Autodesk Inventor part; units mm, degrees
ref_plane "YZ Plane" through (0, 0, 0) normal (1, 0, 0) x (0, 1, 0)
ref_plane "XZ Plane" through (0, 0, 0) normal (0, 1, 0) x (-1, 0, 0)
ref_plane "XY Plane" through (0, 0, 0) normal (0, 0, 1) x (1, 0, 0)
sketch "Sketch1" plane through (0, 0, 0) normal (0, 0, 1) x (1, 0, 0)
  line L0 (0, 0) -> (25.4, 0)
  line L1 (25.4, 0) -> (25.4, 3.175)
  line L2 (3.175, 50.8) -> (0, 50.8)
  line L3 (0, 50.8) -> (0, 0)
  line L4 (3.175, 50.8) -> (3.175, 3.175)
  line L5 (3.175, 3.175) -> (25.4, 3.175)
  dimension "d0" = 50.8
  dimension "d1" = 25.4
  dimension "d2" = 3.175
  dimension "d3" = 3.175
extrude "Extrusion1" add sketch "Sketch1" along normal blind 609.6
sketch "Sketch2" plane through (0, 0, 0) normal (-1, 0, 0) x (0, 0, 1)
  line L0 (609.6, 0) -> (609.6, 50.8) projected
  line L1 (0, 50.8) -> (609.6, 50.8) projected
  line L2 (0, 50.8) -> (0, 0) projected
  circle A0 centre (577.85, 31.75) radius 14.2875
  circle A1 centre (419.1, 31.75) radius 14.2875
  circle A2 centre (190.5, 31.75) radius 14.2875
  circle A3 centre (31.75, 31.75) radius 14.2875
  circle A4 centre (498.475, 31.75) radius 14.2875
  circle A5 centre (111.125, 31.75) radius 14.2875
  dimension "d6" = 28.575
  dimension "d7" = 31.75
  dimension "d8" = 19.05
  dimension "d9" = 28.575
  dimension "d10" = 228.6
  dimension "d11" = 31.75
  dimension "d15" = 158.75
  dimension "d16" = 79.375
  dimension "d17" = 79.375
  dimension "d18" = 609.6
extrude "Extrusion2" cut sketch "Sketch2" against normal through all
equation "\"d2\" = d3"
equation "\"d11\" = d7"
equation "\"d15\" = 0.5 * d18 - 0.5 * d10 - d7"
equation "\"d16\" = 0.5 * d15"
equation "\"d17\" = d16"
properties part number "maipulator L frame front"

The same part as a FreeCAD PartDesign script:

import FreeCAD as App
import Part
import Sketcher
from FreeCAD import Vector
Q = App.Units.Quantity

doc = App.newDocument("Part")
params = doc.addObject("Spreadsheet::Sheet", "Params")
for row, (alias, value) in enumerate([
    ("sketch1_width", "1 in"),
    ("sketch1_height", "2 in"),
    ("sketch1_width2", "0.125 in"),
    ("pad1_length", "24 in"),
    ("sketch2_diameter", "1.125 in"),
], start=1):
    params.set(f"A{row}", alias)
    params.set(f"B{row}", "=" + value)
    params.setAlias(f"B{row}", alias)

body = doc.addObject("PartDesign::Body", "Body")

# Sketch on XY plane
sketch1 = body.newObject("Sketcher::SketchObject", "Sketch")
sketch1.AttachmentSupport = (doc.getObject("XY_Plane"), [""])
sketch1.MapMode = "FlatFace"
sketch1.addGeometry([
    Part.LineSegment(Vector(0, 50.8, 0), Vector(0, 0, 0)),  # 0
    Part.LineSegment(Vector(0, 0, 0), Vector(25.4, 0, 0)),  # 1
    Part.LineSegment(Vector(25.4, 0, 0), Vector(25.4, 3.175, 0)),  # 2
    Part.LineSegment(Vector(25.4, 3.175, 0), Vector(3.175, 3.175, 0)),  # 3
    Part.LineSegment(Vector(3.175, 3.175, 0), Vector(3.175, 50.8, 0)),  # 4
    Part.LineSegment(Vector(3.175, 50.8, 0), Vector(0, 50.8, 0)),  # 5
], False)
sketch1.addConstraint([
    Sketcher.Constraint("Coincident", 0, 2, 1, 1),
    Sketcher.Constraint("Coincident", 1, 2, 2, 1),
    Sketcher.Constraint("Coincident", 2, 2, 3, 1),
    Sketcher.Constraint("Coincident", 3, 2, 4, 1),
    Sketcher.Constraint("Coincident", 4, 2, 5, 1),
    Sketcher.Constraint("Coincident", 5, 2, 0, 1),
    Sketcher.Constraint("Vertical", 0),
    Sketcher.Constraint("Horizontal", 1),
    Sketcher.Constraint("Vertical", 2),
    Sketcher.Constraint("Horizontal", 3),
    Sketcher.Constraint("Vertical", 4),
    Sketcher.Constraint("Horizontal", 5),
    Sketcher.Constraint("Coincident", 0, 2, -1, 1),
    Sketcher.Constraint("Equal", 5, 2),
    Sketcher.Constraint("DistanceX", 1, 1, 1, 2, Q("1 in")),
    Sketcher.Constraint("DistanceY", 0, 2, 0, 1, Q("2 in")),
    Sketcher.Constraint("DistanceX", 5, 2, 5, 1, Q("0.125 in")),
])
sketch1.setExpression("Constraints[14]", "Params.sketch1_width")
sketch1.setExpression("Constraints[15]", "Params.sketch1_height")
sketch1.setExpression("Constraints[16]", "Params.sketch1_width2")
pad1 = body.newObject("PartDesign::Pad", "Pad")
pad1.Profile = sketch1
pad1.setExpression("Length", "Params.pad1_length")

# Sketch on YZ plane
sketch2 = body.newObject("Sketcher::SketchObject", "Sketch001")
sketch2.AttachmentSupport = (doc.getObject("YZ_Plane"), [""])
sketch2.MapMode = "FlatFace"
sketch2.addGeometry([
    Part.Circle(Vector(31.75, 577.85, 0), Vector(0, 0, 1), 14.2875),  # 0
    Part.Circle(Vector(31.75, 419.1, 0), Vector(0, 0, 1), 14.2875),  # 1
    Part.Circle(Vector(31.75, 190.5, 0), Vector(0, 0, 1), 14.2875),  # 2
    Part.Circle(Vector(31.75, 31.75, 0), Vector(0, 0, 1), 14.2875),  # 3
    Part.Circle(Vector(31.75, 498.475, 0), Vector(0, 0, 1), 14.2875),  # 4
    Part.Circle(Vector(31.75, 111.125, 0), Vector(0, 0, 1), 14.2875),  # 5
], False)
sketch2.addConstraint([
    Sketcher.Constraint("Equal", 0, 1),
    Sketcher.Constraint("Equal", 1, 2),
    Sketcher.Constraint("Equal", 2, 3),
    Sketcher.Constraint("Equal", 3, 4),
    Sketcher.Constraint("Equal", 4, 5),
    Sketcher.Constraint("Vertical", 0, 3, 1, 3),
    Sketcher.Constraint("Vertical", 1, 3, 2, 3),
    Sketcher.Constraint("Vertical", 2, 3, 3, 3),
    Sketcher.Constraint("Vertical", 3, 3, 4, 3),
    Sketcher.Constraint("Vertical", 4, 3, 5, 3),
    Sketcher.Constraint("Diameter", 0, Q("1.125 in")),
    Sketcher.Constraint("DistanceY", 2, 3, 1, 3, Q("9 in")),
    Sketcher.Constraint("DistanceX", -1, 1, 0, 3, Q("1.25 in")),
    Sketcher.Constraint("DistanceY", -1, 1, 3, 3, Q("1.25 in")),
    Sketcher.Constraint("DistanceY", 1, 3, 0, 3, Q("6.25 in")),
    Sketcher.Constraint("DistanceY", 3, 3, 2, 3, Q("6.25 in")),
    Sketcher.Constraint("DistanceY", 4, 3, 0, 3, Q("3.125 in")),
    Sketcher.Constraint("DistanceY", 5, 3, 2, 3, Q("3.125 in")),
])
sketch2.setExpression("Constraints[10]", "Params.sketch2_diameter")
pocket1 = body.newObject("PartDesign::Pocket", "Pocket")
pocket1.Profile = sketch2
pocket1.Type = "ThroughAll"
pocket1.Reversed = True

doc.recompute()
